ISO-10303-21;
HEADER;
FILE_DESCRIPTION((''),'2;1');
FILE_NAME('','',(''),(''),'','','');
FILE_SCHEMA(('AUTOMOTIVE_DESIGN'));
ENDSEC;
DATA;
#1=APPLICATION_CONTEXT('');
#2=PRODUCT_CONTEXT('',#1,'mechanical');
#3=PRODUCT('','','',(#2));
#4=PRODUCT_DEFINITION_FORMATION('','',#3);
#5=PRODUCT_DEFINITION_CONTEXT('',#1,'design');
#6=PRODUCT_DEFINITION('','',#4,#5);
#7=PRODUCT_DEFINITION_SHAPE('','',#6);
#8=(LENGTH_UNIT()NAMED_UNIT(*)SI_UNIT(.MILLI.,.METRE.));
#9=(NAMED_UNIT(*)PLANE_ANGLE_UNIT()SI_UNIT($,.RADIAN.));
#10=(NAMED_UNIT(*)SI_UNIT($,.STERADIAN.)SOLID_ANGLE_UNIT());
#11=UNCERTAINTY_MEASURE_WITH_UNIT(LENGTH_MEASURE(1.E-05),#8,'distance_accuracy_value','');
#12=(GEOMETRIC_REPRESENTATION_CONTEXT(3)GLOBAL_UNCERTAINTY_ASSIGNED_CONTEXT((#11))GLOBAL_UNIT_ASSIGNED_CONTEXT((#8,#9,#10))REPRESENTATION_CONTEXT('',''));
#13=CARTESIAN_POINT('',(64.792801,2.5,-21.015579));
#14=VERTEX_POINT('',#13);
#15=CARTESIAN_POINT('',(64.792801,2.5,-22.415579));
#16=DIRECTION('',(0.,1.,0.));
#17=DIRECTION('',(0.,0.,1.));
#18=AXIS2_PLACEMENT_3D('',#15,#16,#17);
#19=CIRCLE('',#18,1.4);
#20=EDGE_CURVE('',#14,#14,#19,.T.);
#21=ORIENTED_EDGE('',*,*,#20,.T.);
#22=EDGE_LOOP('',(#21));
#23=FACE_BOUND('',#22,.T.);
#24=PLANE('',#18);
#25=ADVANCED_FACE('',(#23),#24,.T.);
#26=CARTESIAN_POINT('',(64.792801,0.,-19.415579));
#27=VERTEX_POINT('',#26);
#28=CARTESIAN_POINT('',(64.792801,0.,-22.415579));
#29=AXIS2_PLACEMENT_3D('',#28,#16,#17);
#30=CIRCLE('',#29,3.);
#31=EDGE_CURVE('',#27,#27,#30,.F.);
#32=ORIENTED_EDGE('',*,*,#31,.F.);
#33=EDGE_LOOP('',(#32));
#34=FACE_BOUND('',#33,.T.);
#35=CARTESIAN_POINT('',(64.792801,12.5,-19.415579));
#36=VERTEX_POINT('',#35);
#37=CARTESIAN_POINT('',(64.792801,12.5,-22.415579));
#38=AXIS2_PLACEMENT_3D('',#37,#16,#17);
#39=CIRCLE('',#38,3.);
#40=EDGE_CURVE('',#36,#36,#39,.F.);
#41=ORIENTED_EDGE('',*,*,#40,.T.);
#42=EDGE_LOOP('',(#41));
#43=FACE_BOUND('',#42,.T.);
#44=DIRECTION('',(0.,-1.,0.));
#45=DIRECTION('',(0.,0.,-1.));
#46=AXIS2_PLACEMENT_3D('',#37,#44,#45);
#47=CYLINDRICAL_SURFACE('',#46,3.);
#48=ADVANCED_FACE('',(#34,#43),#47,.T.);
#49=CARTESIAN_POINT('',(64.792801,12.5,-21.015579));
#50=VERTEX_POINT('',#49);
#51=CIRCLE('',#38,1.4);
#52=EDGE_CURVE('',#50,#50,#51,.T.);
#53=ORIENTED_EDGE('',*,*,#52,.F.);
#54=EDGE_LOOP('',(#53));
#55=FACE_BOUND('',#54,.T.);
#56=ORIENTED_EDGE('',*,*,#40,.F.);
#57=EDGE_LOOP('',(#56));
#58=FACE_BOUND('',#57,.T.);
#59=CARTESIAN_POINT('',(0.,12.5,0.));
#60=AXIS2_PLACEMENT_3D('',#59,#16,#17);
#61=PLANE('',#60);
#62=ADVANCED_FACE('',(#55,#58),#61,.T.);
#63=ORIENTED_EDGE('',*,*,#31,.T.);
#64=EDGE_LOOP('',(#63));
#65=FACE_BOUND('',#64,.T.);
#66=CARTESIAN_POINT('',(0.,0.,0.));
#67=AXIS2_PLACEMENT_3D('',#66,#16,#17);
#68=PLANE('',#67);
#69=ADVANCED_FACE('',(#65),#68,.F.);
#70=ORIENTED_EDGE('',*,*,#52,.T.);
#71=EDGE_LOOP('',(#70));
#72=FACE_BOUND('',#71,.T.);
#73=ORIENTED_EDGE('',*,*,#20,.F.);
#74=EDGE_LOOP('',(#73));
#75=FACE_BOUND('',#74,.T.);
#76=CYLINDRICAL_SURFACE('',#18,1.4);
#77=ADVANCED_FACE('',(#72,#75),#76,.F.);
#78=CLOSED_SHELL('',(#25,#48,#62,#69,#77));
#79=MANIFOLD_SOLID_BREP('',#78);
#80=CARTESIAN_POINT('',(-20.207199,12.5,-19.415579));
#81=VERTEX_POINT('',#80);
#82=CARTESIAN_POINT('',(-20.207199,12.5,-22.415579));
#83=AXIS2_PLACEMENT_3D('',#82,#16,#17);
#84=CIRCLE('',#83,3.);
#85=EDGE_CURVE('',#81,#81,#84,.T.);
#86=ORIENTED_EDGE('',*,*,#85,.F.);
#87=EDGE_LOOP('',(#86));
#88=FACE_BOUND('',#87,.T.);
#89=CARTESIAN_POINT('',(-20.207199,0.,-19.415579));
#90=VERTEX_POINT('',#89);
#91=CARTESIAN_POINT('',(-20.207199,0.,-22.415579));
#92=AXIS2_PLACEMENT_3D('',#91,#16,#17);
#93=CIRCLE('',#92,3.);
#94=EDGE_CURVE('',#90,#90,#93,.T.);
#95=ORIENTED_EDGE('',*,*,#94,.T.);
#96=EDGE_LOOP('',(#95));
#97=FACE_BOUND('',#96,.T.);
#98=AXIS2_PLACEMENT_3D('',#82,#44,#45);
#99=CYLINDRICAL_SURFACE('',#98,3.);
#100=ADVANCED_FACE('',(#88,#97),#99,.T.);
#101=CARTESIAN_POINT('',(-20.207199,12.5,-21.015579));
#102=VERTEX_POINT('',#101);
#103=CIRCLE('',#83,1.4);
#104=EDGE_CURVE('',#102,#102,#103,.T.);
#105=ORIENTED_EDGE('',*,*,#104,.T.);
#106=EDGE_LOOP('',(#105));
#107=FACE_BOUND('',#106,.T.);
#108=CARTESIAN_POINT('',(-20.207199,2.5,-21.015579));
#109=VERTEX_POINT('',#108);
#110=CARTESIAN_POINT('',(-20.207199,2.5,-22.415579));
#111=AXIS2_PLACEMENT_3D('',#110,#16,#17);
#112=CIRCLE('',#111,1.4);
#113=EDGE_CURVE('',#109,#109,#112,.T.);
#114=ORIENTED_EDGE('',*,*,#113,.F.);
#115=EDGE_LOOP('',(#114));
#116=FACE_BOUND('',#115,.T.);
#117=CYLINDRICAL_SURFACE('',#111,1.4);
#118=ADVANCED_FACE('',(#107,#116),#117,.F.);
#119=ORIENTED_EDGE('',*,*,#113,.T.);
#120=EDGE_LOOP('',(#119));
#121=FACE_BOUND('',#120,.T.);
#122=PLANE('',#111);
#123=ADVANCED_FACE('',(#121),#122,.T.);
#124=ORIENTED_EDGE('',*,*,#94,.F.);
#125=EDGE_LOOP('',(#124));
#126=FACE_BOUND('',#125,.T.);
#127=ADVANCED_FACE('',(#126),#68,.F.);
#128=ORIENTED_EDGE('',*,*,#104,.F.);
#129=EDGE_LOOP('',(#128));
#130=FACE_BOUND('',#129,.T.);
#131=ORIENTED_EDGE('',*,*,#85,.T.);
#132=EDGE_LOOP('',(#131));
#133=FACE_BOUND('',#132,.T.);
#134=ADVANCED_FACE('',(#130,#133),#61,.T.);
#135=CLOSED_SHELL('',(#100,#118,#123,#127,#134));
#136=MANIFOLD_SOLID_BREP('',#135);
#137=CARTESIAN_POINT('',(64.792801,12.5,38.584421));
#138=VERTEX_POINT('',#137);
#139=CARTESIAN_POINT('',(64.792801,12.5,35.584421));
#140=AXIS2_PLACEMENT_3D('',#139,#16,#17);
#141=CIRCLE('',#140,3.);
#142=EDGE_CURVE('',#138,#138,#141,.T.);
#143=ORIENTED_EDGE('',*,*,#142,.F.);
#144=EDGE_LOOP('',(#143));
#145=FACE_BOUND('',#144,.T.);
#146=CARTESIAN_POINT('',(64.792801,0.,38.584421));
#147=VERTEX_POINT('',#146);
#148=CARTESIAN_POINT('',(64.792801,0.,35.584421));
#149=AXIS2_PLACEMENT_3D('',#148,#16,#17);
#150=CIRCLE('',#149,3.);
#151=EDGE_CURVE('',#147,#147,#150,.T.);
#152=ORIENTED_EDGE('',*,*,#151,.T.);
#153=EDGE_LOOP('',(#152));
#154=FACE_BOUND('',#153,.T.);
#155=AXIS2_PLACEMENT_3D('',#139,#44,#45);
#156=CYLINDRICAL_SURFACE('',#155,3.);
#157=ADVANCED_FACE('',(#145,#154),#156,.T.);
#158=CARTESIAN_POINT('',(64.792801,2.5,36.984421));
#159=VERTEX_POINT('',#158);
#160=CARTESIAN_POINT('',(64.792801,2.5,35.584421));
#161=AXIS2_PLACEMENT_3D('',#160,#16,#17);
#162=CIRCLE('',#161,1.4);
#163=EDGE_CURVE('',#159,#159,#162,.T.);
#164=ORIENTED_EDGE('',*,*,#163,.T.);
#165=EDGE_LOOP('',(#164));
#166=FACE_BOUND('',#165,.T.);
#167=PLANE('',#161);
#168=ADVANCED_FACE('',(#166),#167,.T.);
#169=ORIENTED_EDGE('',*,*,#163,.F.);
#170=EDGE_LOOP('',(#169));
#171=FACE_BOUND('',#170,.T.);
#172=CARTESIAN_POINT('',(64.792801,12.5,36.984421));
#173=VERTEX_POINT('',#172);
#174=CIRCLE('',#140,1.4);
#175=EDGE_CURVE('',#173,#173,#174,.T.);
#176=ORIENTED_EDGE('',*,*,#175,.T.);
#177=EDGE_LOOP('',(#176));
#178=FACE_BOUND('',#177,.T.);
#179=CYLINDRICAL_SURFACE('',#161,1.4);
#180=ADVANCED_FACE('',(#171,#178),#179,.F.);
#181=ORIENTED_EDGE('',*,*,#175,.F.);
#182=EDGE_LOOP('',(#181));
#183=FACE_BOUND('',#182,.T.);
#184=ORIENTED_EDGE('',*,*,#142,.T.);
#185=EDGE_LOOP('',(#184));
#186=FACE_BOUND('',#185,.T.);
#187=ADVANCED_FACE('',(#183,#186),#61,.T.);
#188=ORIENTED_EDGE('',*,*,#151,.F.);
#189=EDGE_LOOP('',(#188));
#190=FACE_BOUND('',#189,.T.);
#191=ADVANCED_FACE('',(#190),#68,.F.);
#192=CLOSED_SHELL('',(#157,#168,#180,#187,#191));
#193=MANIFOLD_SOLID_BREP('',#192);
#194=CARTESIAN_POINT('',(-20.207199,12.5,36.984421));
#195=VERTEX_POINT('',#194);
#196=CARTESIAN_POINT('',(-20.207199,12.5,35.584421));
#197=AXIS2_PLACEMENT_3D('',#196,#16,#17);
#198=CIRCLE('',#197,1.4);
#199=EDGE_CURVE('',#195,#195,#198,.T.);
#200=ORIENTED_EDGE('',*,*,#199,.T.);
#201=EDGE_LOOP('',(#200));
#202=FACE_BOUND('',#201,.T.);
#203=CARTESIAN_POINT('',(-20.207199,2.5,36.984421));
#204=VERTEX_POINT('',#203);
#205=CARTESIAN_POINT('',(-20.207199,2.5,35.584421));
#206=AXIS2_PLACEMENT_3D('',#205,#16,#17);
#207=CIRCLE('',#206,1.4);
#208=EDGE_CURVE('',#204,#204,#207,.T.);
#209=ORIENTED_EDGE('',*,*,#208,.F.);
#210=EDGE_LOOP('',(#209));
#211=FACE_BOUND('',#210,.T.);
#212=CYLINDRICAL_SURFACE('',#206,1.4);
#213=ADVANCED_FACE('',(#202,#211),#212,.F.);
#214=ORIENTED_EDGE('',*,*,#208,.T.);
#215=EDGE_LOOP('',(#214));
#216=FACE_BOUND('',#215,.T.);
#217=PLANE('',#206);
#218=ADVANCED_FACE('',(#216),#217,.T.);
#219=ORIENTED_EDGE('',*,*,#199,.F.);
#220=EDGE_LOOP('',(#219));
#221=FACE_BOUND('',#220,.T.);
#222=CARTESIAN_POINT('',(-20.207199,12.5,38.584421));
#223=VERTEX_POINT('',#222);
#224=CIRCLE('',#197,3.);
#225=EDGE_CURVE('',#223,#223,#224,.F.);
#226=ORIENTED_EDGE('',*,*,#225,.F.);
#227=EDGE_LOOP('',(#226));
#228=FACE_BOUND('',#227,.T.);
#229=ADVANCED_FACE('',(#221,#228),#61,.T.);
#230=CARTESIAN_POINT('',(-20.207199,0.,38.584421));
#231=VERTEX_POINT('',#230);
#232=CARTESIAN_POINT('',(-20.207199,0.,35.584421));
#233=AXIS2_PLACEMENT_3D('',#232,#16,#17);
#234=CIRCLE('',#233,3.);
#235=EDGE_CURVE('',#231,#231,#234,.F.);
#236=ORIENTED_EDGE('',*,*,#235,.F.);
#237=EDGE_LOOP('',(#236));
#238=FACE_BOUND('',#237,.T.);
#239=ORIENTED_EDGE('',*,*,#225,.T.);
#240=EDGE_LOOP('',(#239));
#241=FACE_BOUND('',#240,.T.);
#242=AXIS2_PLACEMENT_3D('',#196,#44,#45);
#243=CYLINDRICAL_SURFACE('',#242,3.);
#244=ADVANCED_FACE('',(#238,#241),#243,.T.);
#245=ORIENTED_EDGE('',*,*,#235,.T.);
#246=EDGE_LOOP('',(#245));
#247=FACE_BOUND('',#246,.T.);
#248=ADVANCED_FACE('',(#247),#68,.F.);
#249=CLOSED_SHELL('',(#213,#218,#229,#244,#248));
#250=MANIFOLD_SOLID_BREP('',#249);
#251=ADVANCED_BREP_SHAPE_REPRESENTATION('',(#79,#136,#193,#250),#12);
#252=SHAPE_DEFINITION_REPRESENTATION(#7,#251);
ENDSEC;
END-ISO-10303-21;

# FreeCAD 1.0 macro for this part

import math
import FreeCAD as App
import Part
import Sketcher

V = App.Vector

doc = App.newDocument("Part")
body = doc.addObject("PartDesign::Body", "Body")
body.AllowCompound = True

sketch1 = body.newObject("Sketcher::SketchObject", "Sketch")
sketch1.AttachmentSupport = (doc.getObject("XZ_Plane"), [""])
sketch1.MapMode = "FlatFace"
sketch1.addGeometry([
    Part.ArcOfCircle(Part.Circle(V(-20.2, 35.6, 0), V(0, 0, 1), 3), math.radians(-90), math.radians(0)),
    Part.ArcOfCircle(Part.Circle(V(-20.2, 35.6, 0), V(0, 0, 1), 3), math.radians(0), math.radians(270)),
    Part.ArcOfCircle(Part.Circle(V(-20.2, -22.4, 0), V(0, 0, 1), 3), math.radians(90), math.radians(360)),
    Part.ArcOfCircle(Part.Circle(V(-20.2, -22.4, 0), V(0, 0, 1), 3), math.radians(0), math.radians(90)),
    Part.ArcOfCircle(Part.Circle(V(64.8, 35.6, 0), V(0, 0, 1), 3), math.radians(-90), math.radians(0)),
    Part.ArcOfCircle(Part.Circle(V(64.8, 35.6, 0), V(0, 0, 1), 3), math.radians(180), math.radians(270)),
    Part.ArcOfCircle(Part.Circle(V(64.8, 35.6, 0), V(0, 0, 1), 3), math.radians(0), math.radians(180)),
    Part.ArcOfCircle(Part.Circle(V(64.8, -22.4, 0), V(0, 0, 1), 3), math.radians(180), math.radians(360)),
    Part.ArcOfCircle(Part.Circle(V(64.8, -22.4, 0), V(0, 0, 1), 3), math.radians(90), math.radians(180)),
    Part.ArcOfCircle(Part.Circle(V(64.8, -22.4, 0), V(0, 0, 1), 3), math.radians(0), math.radians(90)),
], False)
sketch1.addConstraint([
    Sketcher.Constraint("Tangent", 0, 1, 1, 2),
    Sketcher.Constraint("Coincident", 1, 1, 0, 2),
    Sketcher.Constraint("Tangent", 2, 1, 3, 2),
    Sketcher.Constraint("Coincident", 3, 1, 2, 2),
    Sketcher.Constraint("Tangent", 4, 1, 5, 2),
    Sketcher.Constraint("Tangent", 5, 1, 6, 2),
    Sketcher.Constraint("Tangent", 6, 1, 4, 2),
    Sketcher.Constraint("Tangent", 7, 1, 8, 2),
    Sketcher.Constraint("Tangent", 8, 1, 9, 2),
    Sketcher.Constraint("Tangent", 9, 1, 7, 2),
    Sketcher.Constraint("Equal", 1, 2),
    Sketcher.Constraint("Equal", 3, 4),
    Sketcher.Constraint("Equal", 6, 7),
    Sketcher.Constraint("Horizontal", 1, 3, 4, 3),
    Sketcher.Constraint("Horizontal", 3, 3, 7, 3),
    Sketcher.Constraint("Horizontal", 6, 3, 1, 1),
    Sketcher.Constraint("Horizontal", 9, 3, 3, 1),
    Sketcher.Constraint("Horizontal", 1, 1, 5, 1),
    Sketcher.Constraint("Horizontal", 5, 1, 6, 1),
    Sketcher.Constraint("Horizontal", 3, 1, 7, 1),
    Sketcher.Constraint("Horizontal", 7, 1, 9, 1),
    Sketcher.Constraint("Vertical", 1, 3, 2, 3),
    Sketcher.Constraint("Vertical", 6, 3, 7, 3),
    Sketcher.Constraint("Vertical", 3, 3, 0, 1),
    Sketcher.Constraint("Vertical", 0, 1, 2, 1),
    Sketcher.Constraint("Vertical", 9, 3, 4, 1),
    Sketcher.Constraint("Vertical", 4, 1, 8, 1),
    Sketcher.Constraint("Radius", 0, 3.0),
    Sketcher.Constraint("DistanceY", 2, 3, 0, 3, 58.0),
    Sketcher.Constraint("DistanceX", 0, 3, 4, 3, 85.0),
    Sketcher.Constraint("DistanceX", 0, 3, -1, 1, 20.207199),
    Sketcher.Constraint("DistanceY", -1, 1, 0, 3, 35.584421),
])
pad1 = body.newObject("PartDesign::Pad", "Pad")
pad1.Profile = sketch1
pad1.Length = 12.5
pad1.Reversed = True

sketch2 = body.newObject("Sketcher::SketchObject", "Sketch001")
sketch2.AttachmentSupport = (doc.getObject("XZ_Plane"), [""])
sketch2.MapMode = "FlatFace"
sketch2.AttachmentOffset = App.Placement(V(0, 0, -12.5), App.Rotation())
sketch2.addGeometry([
    Part.Circle(V(-20.2, -22.4, 0), V(0, 0, 1), 1.4),
    Part.Circle(V(-20.2, 35.6, 0), V(0, 0, 1), 1.4),
    Part.Circle(V(64.8, 35.6, 0), V(0, 0, 1), 1.4),
    Part.Circle(V(64.8, -22.4, 0), V(0, 0, 1), 1.4),
], False)
sketch2.addConstraint([
    Sketcher.Constraint("Equal", 0, 1),
    Sketcher.Constraint("Equal", 1, 2),
    Sketcher.Constraint("Equal", 2, 3),
    Sketcher.Constraint("Horizontal", 1, 3, 2, 3),
    Sketcher.Constraint("Horizontal", 0, 3, 3, 3),
    Sketcher.Constraint("Vertical", 0, 3, 1, 3),
    Sketcher.Constraint("Vertical", 2, 3, 3, 3),
    Sketcher.Constraint("Diameter", 0, 2.8),
    Sketcher.Constraint("DistanceY", 0, 3, 1, 3, 58.0),
    Sketcher.Constraint("DistanceX", 1, 3, 2, 3, 85.0),
    Sketcher.Constraint("DistanceX", 0, 3, -1, 1, 20.207199),
    Sketcher.Constraint("DistanceY", 0, 3, -1, 1, 22.415579),
])
pocket1 = body.newObject("PartDesign::Pocket", "Pocket")
pocket1.Profile = sketch2
pocket1.Length = 10
pocket1.Reversed = True

doc.recompute()
